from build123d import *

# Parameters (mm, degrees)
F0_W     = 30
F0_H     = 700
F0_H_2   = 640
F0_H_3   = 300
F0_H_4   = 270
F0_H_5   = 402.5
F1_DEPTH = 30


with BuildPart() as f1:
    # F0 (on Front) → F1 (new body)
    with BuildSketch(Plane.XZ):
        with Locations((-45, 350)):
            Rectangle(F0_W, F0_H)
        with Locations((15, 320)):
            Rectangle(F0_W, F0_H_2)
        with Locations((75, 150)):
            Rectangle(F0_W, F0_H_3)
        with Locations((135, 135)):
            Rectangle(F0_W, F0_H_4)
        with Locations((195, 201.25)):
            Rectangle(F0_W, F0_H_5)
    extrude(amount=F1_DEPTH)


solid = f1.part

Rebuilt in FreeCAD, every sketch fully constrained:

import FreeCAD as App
import Part
import Sketcher

V = App.Vector
Q = App.Units.Quantity

doc = App.newDocument("Part")
params = doc.addObject("Spreadsheet::Sheet", "Params")
for row, (alias, value) in enumerate([
    ("sketch1_width", "30 mm"),
    ("sketch1_height", "700 mm"),
    ("sketch1_height2", "640 mm"),
    ("sketch1_height3", "300 mm"),
    ("sketch1_height4", "270 mm"),
    ("pad1_length", "30 mm"),
], start=1):
    params.set(f"A{row}", alias)
    params.set(f"B{row}", "=" + value)
    params.setAlias(f"B{row}", alias)

body = doc.addObject("PartDesign::Body", "Body")
body.AllowCompound = True

# Sketch on XZ plane
sketch1 = doc.addObject("Sketcher::SketchObject", "Sketch")
body.addObject(sketch1)
sketch1.AttachmentSupport = (doc.XZ_Plane, [""])
sketch1.MapMode = "FlatFace"
sketch1.addGeometry([
    Part.LineSegment(V(-60, 700, 0), V(-60, 0, 0)),  # 0
    Part.LineSegment(V(-60, 0, 0), V(-30, 0, 0)),  # 1
    Part.LineSegment(V(-30, 0, 0), V(-30, 700, 0)),  # 2
    Part.LineSegment(V(-30, 700, 0), V(-60, 700, 0)),  # 3
    Part.LineSegment(V(0, 640, 0), V(0, 0, 0)),  # 4
    Part.LineSegment(V(0, 0, 0), V(30, 0, 0)),  # 5
    Part.LineSegment(V(30, 0, 0), V(30, 640, 0)),  # 6
    Part.LineSegment(V(30, 640, 0), V(0, 640, 0)),  # 7
    Part.LineSegment(V(60, 300, 0), V(60, 0, 0)),  # 8
    Part.LineSegment(V(60, 0, 0), V(90, 0, 0)),  # 9
    Part.LineSegment(V(90, 0, 0), V(90, 300, 0)),  # 10
    Part.LineSegment(V(90, 300, 0), V(60, 300, 0)),  # 11
    Part.LineSegment(V(120, 270, 0), V(120, 0, 0)),  # 12
    Part.LineSegment(V(120, 0, 0), V(150, 0, 0)),  # 13
    Part.LineSegment(V(150, 0, 0), V(150, 270, 0)),  # 14
    Part.LineSegment(V(150, 270, 0), V(120, 270, 0)),  # 15
    Part.LineSegment(V(180, 402, 0), V(180, 0, 0)),  # 16
    Part.LineSegment(V(180, 0, 0), V(210, 0, 0)),  # 17
    Part.LineSegment(V(210, 0, 0), V(210, 402, 0)),  # 18
    Part.LineSegment(V(210, 402, 0), V(180, 402, 0)),  # 19
], False)
sketch1.addConstraint([
    Sketcher.Constraint("Coincident", 0, 2, 1, 1),
    Sketcher.Constraint("Coincident", 1, 2, 2, 1),
    Sketcher.Constraint("Coincident", 2, 2, 3, 1),
    Sketcher.Constraint("Coincident", 3, 2, 0, 1),
    Sketcher.Constraint("Coincident", 4, 2, 5, 1),
    Sketcher.Constraint("Coincident", 5, 2, 6, 1),
    Sketcher.Constraint("Coincident", 6, 2, 7, 1),
    Sketcher.Constraint("Coincident", 7, 2, 4, 1),
    Sketcher.Constraint("Coincident", 8, 2, 9, 1),
    Sketcher.Constraint("Coincident", 9, 2, 10, 1),
    Sketcher.Constraint("Coincident", 10, 2, 11, 1),
    Sketcher.Constraint("Coincident", 11, 2, 8, 1),
    Sketcher.Constraint("Coincident", 12, 2, 13, 1),
    Sketcher.Constraint("Coincident", 13, 2, 14, 1),
    Sketcher.Constraint("Coincident", 14, 2, 15, 1),
    Sketcher.Constraint("Coincident", 15, 2, 12, 1),
    Sketcher.Constraint("Coincident", 16, 2, 17, 1),
    Sketcher.Constraint("Coincident", 17, 2, 18, 1),
    Sketcher.Constraint("Coincident", 18, 2, 19, 1),
    Sketcher.Constraint("Coincident", 19, 2, 16, 1),
    Sketcher.Constraint("Vertical", 0),
    Sketcher.Constraint("Horizontal", 1),
    Sketcher.Constraint("Vertical", 2),
    Sketcher.Constraint("Horizontal", 3),
    Sketcher.Constraint("Vertical", 4),
    Sketcher.Constraint("Horizontal", 5),
    Sketcher.Constraint("Vertical", 6),
    Sketcher.Constraint("Horizontal", 7),
    Sketcher.Constraint("Vertical", 8),
    Sketcher.Constraint("Horizontal", 9),
    Sketcher.Constraint("Vertical", 10),
    Sketcher.Constraint("Horizontal", 11),
    Sketcher.Constraint("Vertical", 12),
    Sketcher.Constraint("Horizontal", 13),
    Sketcher.Constraint("Vertical", 14),
    Sketcher.Constraint("Horizontal", 15),
    Sketcher.Constraint("Vertical", 16),
    Sketcher.Constraint("Horizontal", 17),
    Sketcher.Constraint("Vertical", 18),
    Sketcher.Constraint("Horizontal", 19),
    Sketcher.Constraint("Coincident", 4, 2, -1, 1),
    Sketcher.Constraint("Symmetric", 1, 2, 5, 2, -1, 1),
    Sketcher.Constraint("Symmetric", 0, 2, 8, 2, -1, 1),
    Sketcher.Constraint("PointOnObject", 12, 2, -1),
    Sketcher.Constraint("PointOnObject", 16, 2, -1),
    Sketcher.Constraint("Equal", 3, 5),
    Sketcher.Constraint("Equal", 7, 9),
    Sketcher.Constraint("Equal", 11, 13),
    Sketcher.Constraint("Equal", 15, 17),
    Sketcher.Constraint("DistanceX", 1, 1, 1, 2, Q("30 mm")),
    Sketcher.Constraint("DistanceY", 0, 2, 0, 1, Q("700 mm")),
    Sketcher.Constraint("DistanceY", 4, 2, 4, 1, Q("640 mm")),
    Sketcher.Constraint("DistanceY", 8, 2, 8, 1, Q("300 mm")),
    Sketcher.Constraint("DistanceY", 12, 2, 12, 1, Q("270 mm")),
    Sketcher.Constraint("DistanceY", 16, 2, 16, 1, Q("402.5 mm")),
    Sketcher.Constraint("DistanceX", -1, 1, 12, 2, Q("120 mm")),
    Sketcher.Constraint("DistanceX", -1, 1, 16, 2, Q("180 mm")),
])
sketch1.setExpression("Constraints[49]", "Params.sketch1_width")
sketch1.setExpression("Constraints[50]", "Params.sketch1_height")
sketch1.setExpression("Constraints[51]", "Params.sketch1_height2")
sketch1.setExpression("Constraints[52]", "Params.sketch1_height3")
sketch1.setExpression("Constraints[53]", "Params.sketch1_height4")
pad1 = doc.addObject("PartDesign::Pad", "Pad")
body.addObject(pad1)
pad1.Profile = sketch1
pad1.setExpression("Length", "Params.pad1_length")

doc.recompute()
